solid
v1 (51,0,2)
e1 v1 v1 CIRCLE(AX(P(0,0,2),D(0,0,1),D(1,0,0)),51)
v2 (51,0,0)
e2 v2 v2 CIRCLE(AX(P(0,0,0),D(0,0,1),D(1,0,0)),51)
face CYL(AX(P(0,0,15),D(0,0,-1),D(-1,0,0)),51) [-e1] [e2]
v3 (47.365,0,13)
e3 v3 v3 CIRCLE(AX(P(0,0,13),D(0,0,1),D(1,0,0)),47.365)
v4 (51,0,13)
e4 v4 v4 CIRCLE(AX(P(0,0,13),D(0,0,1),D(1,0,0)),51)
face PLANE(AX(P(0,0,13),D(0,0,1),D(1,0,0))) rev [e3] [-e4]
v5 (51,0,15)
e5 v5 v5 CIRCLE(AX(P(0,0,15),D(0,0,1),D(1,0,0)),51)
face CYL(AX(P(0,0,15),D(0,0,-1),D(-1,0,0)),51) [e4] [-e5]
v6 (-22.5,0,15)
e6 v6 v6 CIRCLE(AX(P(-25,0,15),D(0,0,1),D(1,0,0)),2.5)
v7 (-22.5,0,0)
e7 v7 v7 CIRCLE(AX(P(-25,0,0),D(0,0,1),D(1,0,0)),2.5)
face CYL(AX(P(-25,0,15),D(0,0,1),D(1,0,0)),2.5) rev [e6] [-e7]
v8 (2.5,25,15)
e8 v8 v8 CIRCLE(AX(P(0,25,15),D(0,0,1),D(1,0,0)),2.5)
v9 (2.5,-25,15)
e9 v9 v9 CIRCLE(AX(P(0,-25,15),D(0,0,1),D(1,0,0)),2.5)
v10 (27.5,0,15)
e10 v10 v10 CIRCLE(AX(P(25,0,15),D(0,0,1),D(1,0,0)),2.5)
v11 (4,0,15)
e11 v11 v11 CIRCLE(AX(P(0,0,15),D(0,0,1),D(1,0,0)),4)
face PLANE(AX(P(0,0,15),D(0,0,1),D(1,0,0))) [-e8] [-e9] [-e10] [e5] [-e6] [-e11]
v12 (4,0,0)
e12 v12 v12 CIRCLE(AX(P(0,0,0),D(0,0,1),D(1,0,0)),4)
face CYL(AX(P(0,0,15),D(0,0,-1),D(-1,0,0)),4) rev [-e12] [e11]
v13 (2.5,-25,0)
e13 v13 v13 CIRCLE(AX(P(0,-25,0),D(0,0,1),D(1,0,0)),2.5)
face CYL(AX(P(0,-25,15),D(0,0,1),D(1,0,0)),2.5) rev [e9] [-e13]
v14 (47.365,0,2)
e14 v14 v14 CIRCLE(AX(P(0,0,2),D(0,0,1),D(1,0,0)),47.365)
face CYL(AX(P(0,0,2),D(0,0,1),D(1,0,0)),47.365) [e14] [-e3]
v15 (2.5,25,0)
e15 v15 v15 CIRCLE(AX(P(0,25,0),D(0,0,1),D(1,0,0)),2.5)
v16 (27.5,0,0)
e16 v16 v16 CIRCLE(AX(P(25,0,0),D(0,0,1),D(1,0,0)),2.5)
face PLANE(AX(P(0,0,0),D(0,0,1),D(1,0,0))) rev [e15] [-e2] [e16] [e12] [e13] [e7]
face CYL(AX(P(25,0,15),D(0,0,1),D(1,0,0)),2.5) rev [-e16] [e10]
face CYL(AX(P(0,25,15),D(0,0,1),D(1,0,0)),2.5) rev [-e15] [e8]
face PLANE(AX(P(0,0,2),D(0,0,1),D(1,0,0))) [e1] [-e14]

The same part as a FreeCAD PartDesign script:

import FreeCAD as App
import Part
import Sketcher

doc = App.newDocument("Part")
body = doc.addObject("PartDesign::Body", "Body")

sketch1 = doc.addObject("Sketcher::SketchObject", "Sketch")
body.addObject(sketch1)
sketch1.AttachmentSupport = (doc.XY_Plane, [""])
sketch1.MapMode = "FlatFace"
sketch1.addGeometry(Part.Circle(App.Vector(0, 0, 0), App.Vector(0, 0, 1), 51), False)
sketch1.addGeometry(Part.Circle(App.Vector(0, 0, 0), App.Vector(0, 0, 1), 4), False)
sketch1.addConstraint(Sketcher.Constraint("Coincident", 0, 3, -1, 1))
sketch1.addConstraint(Sketcher.Constraint("Coincident", 1, 3, -1, 1))
sketch1.addConstraint(Sketcher.Constraint("Diameter", 0, 102.0))
sketch1.addConstraint(Sketcher.Constraint("Diameter", 1, 8.0))
pad1 = doc.addObject("PartDesign::Pad", "Pad")
body.addObject(pad1)
pad1.Profile = sketch1
pad1.Length = 15

sketch2 = doc.addObject("Sketcher::SketchObject", "Sketch001")
body.addObject(sketch2)
sketch2.AttachmentSupport = (doc.XY_Plane, [""])
sketch2.MapMode = "FlatFace"
sketch2.AttachmentOffset = App.Placement(App.Vector(0, 0, 15), App.Rotation())
sketch2.addGeometry(Part.Circle(App.Vector(25, 0, 0), App.Vector(0, 0, 1), 2.5), False)
sketch2.addGeometry(Part.Circle(App.Vector(0, 25, 0), App.Vector(0, 0, 1), 2.5), False)
sketch2.addGeometry(Part.Circle(App.Vector(-25, 0, 0), App.Vector(0, 0, 1), 2.5), False)
sketch2.addGeometry(Part.Circle(App.Vector(0, -25, 0), App.Vector(0, 0, 1), 2.5), False)
sketch2.addConstraint(Sketcher.Constraint("Equal", 0, 1))
sketch2.addConstraint(Sketcher.Constraint("Equal", 1, 2))
sketch2.addConstraint(Sketcher.Constraint("Equal", 2, 3))
sketch2.addConstraint(Sketcher.Constraint("Symmetric", 0, 3, 2, 3, -1, 1))
sketch2.addConstraint(Sketcher.Constraint("Symmetric", 1, 3, 3, 3, -1, 1))
sketch2.addConstraint(Sketcher.Constraint("PointOnObject", 0, 3, -1))
sketch2.addConstraint(Sketcher.Constraint("PointOnObject", 1, 3, -2))
sketch2.addConstraint(Sketcher.Constraint("Diameter", 0, 5.0))
sketch2.addConstraint(Sketcher.Constraint("DistanceX", -1, 1, 0, 3, 25.0))
sketch2.addConstraint(Sketcher.Constraint("DistanceY", -1, 1, 1, 3, 25.0))
doc.recompute()
hole = doc.addObject("PartDesign::Hole", "Hole")
body.addObject(hole)
hole.Profile = sketch2
hole.ThreadType = "None"
hole.Diameter = 5
hole.DepthType = "ThroughAll"

sketch3 = doc.addObject("Sketcher::SketchObject", "Sketch002")
body.addObject(sketch3)
sketch3.AttachmentSupport = (doc.XY_Plane, [""])
sketch3.MapMode = "FlatFace"
sketch3.AttachmentOffset = App.Placement(App.Vector(0, 0, 2), App.Rotation())
sketch3.addGeometry(Part.Circle(App.Vector(0, 0, 0), App.Vector(0, 0, 1), 51), False)
sketch3.addGeometry(Part.Circle(App.Vector(0, 0, 0), App.Vector(0, 0, 1), 47.365), False)
sketch3.addConstraint(Sketcher.Constraint("Coincident", 0, 3, -1, 1))
sketch3.addConstraint(Sketcher.Constraint("Coincident", 1, 3, -1, 1))
sketch3.addConstraint(Sketcher.Constraint("Diameter", 0, 102.0))
sketch3.addConstraint(Sketcher.Constraint("Diameter", 1, 94.73))
pocket1 = doc.addObject("PartDesign::Pocket", "Pocket")
body.addObject(pocket1)
pocket1.Profile = sketch3
pocket1.Length = 11
pocket1.Reversed = True

doc.recompute()
